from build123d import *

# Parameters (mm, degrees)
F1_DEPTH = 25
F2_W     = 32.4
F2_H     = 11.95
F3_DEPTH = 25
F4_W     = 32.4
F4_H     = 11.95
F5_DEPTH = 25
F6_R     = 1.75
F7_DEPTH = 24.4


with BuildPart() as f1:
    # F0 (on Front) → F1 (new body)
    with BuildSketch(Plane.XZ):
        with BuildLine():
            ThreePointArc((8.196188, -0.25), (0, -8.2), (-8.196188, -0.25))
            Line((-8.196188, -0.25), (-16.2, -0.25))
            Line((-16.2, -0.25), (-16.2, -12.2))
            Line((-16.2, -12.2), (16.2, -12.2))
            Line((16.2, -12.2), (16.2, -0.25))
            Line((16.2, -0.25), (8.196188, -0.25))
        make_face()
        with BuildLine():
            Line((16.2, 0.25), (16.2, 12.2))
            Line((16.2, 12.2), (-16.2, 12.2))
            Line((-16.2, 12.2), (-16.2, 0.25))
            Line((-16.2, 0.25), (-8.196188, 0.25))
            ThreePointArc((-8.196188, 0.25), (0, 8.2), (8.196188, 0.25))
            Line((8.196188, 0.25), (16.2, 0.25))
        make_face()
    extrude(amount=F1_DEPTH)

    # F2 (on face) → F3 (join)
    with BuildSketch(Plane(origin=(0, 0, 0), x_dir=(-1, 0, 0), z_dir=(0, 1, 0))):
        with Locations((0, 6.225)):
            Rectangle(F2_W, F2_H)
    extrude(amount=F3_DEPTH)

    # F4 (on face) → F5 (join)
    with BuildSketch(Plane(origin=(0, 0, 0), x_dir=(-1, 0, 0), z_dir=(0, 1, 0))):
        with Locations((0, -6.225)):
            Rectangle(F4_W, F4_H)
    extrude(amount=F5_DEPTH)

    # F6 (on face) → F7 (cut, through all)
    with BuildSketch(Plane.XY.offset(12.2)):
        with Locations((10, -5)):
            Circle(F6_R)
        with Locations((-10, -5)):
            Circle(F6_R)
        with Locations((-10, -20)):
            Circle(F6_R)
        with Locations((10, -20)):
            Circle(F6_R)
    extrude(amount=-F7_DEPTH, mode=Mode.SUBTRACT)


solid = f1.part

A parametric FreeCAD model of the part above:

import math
import FreeCAD as App
import Part
import Sketcher
from FreeCAD import Vector
Q = App.Units.Quantity

doc = App.newDocument("Part")
body = doc.addObject("PartDesign::Body", "Body")
body.AllowCompound = True

sketch1 = body.newObject("Sketcher::SketchObject", "Sketch")
sketch1.AttachmentSupport = (doc.getObject("XZ_Plane"), [""])
sketch1.MapMode = "FlatFace"
sketch1.addGeometry(Part.ArcOfCircle(Part.Circle(Vector(0, 0, 0), Vector(0, 0, 1), 8), math.radians(-178), math.radians(-2)), False)
sketch1.addGeometry(Part.LineSegment(Vector(-8, 0, 0), Vector(-16, 0, 0)), False)
sketch1.addGeometry(Part.LineSegment(Vector(-16, 0, 0), Vector(-16, -12, 0)), False)
sketch1.addGeometry(Part.LineSegment(Vector(-16, -12, 0), Vector(16, -12, 0)), False)
sketch1.addGeometry(Part.LineSegment(Vector(16, -12, 0), Vector(16, 0, 0)), False)
sketch1.addGeometry(Part.LineSegment(Vector(16, 0, 0), Vector(8, 0, 0)), False)
sketch1.addGeometry(Part.LineSegment(Vector(16, 0, 0), Vector(16, 12, 0)), False)
sketch1.addGeometry(Part.LineSegment(Vector(16, 12, 0), Vector(-16, 12, 0)), False)
sketch1.addGeometry(Part.LineSegment(Vector(-16, 12, 0), Vector(-16, 0, 0)), False)
sketch1.addGeometry(Part.LineSegment(Vector(-16, 0, 0), Vector(-8, 0, 0)), False)
sketch1.addGeometry(Part.ArcOfCircle(Part.Circle(Vector(0, 0, 0), Vector(0, 0, 1), 8), math.radians(2), math.radians(178)), False)
sketch1.addGeometry(Part.LineSegment(Vector(8, 0, 0), Vector(16, 0, 0)), False)
sketch1.addConstraint(Sketcher.Constraint("Coincident", 0, 1, 1, 1))
sketch1.addConstraint(Sketcher.Constraint("Coincident", 1, 2, 2, 1))
sketch1.addConstraint(Sketcher.Constraint("Coincident", 2, 2, 3, 1))
sketch1.addConstraint(Sketcher.Constraint("Coincident", 3, 2, 4, 1))
sketch1.addConstraint(Sketcher.Constraint("Coincident", 4, 2, 5, 1))
sketch1.addConstraint(Sketcher.Constraint("Coincident", 5, 2, 0, 2))
sketch1.addConstraint(Sketcher.Constraint("Coincident", 6, 2, 7, 1))
sketch1.addConstraint(Sketcher.Constraint("Coincident", 7, 2, 8, 1))
sketch1.addConstraint(Sketcher.Constraint("Coincident", 8, 2, 9, 1))
sketch1.addConstraint(Sketcher.Constraint("Coincident", 9, 2, 10, 2))
sketch1.addConstraint(Sketcher.Constraint("Coincident", 10, 1, 11, 1))
sketch1.addConstraint(Sketcher.Constraint("Coincident", 11, 2, 6, 1))
sketch1.addConstraint(Sketcher.Constraint("Horizontal", 1))
sketch1.addConstraint(Sketcher.Constraint("Vertical", 2))
sketch1.addConstraint(Sketcher.Constraint("Horizontal", 3))
sketch1.addConstraint(Sketcher.Constraint("Vertical", 4))
sketch1.addConstraint(Sketcher.Constraint("Horizontal", 5))
sketch1.addConstraint(Sketcher.Constraint("Vertical", 6))
sketch1.addConstraint(Sketcher.Constraint("Horizontal", 7))
sketch1.addConstraint(Sketcher.Constraint("Vertical", 8))
sketch1.addConstraint(Sketcher.Constraint("Horizontal", 9))
sketch1.addConstraint(Sketcher.Constraint("Horizontal", 11))
sketch1.addConstraint(Sketcher.Constraint("Coincident", 0, 3, -1, 1))
sketch1.addConstraint(Sketcher.Constraint("Coincident", 10, 3, -1, 1))
sketch1.addConstraint(Sketcher.Constraint("Equal", 0, 10))
sketch1.addConstraint(Sketcher.Constraint("Symmetric", 2, 2, 6, 2, -1, 1))
sketch1.addConstraint(Sketcher.Constraint("Symmetric", 4, 2, 8, 2, -1, 1))
sketch1.addConstraint(Sketcher.Constraint("Symmetric", 1, 2, 4, 2, -2))
sketch1.addConstraint(Sketcher.Constraint("Horizontal", 9, 2, 10, 1))
sketch1.addConstraint(Sketcher.Constraint("Radius", 0, Q("8.2 mm")))
sketch1.addConstraint(Sketcher.Constraint("DistanceX", 3, 1, 3, 2, Q("32.4 mm")))
sketch1.addConstraint(Sketcher.Constraint("DistanceY", 2, 2, 2, 1, Q("11.95 mm")))
sketch1.addConstraint(Sketcher.Constraint("DistanceY", 2, 2, -1, 1, Q("12.2 mm")))
pad1 = body.newObject("PartDesign::Pad", "Pad")
pad1.Profile = sketch1
pad1.Length = 25

sketch2 = body.newObject("Sketcher::SketchObject", "Sketch001")
sketch2.AttachmentSupport = (doc.getObject("XZ_Plane"), [""])
sketch2.MapMode = "FlatFace"
sketch2.addGeometry(Part.LineSegment(Vector(16, 12, 0), Vector(16, 0, 0)), False)
sketch2.addGeometry(Part.LineSegment(Vector(16, 0, 0), Vector(-16, 0, 0)), False)
sketch2.addGeometry(Part.LineSegment(Vector(-16, 0, 0), Vector(-16, 12, 0)), False)
sketch2.addGeometry(Part.LineSegment(Vector(-16, 12, 0), Vector(16, 12, 0)), False)
sketch2.addConstraint(Sketcher.Constraint("Coincident", 0, 2, 1, 1))
sketch2.addConstraint(Sketcher.Constraint("Coincident", 1, 2, 2, 1))
sketch2.addConstraint(Sketcher.Constraint("Coincident", 2, 2, 3, 1))
sketch2.addConstraint(Sketcher.Constraint("Coincident", 3, 2, 0, 1))
sketch2.addConstraint(Sketcher.Constraint("Vertical", 0))
sketch2.addConstraint(Sketcher.Constraint("Horizontal", 1))
sketch2.addConstraint(Sketcher.Constraint("Vertical", 2))
sketch2.addConstraint(Sketcher.Constraint("Horizontal", 3))
sketch2.addConstraint(Sketcher.Constraint("DistanceX", 1, 2, 1, 1, Q("32.4 mm")))
sketch2.addConstraint(Sketcher.Constraint("DistanceY", 0, 2, 0, 1, Q("11.95 mm")))
sketch2.addConstraint(Sketcher.Constraint("DistanceX", -1, 1, 0, 2, Q("16.2 mm")))
sketch2.addConstraint(Sketcher.Constraint("DistanceY", -1, 1, 2, 2, Q("12.2 mm")))
pad2 = body.newObject("PartDesign::Pad", "Pad001")
pad2.Profile = sketch2
pad2.Length = 25
pad2.Reversed = True

sketch3 = body.newObject("Sketcher::SketchObject", "Sketch002")
sketch3.AttachmentSupport = (doc.getObject("XZ_Plane"), [""])
sketch3.MapMode = "FlatFace"
sketch3.addGeometry(Part.LineSegment(Vector(16, 0, 0), Vector(16, -12, 0)), False)
sketch3.addGeometry(Part.LineSegment(Vector(16, -12, 0), Vector(-16, -12, 0)), False)
sketch3.addGeometry(Part.LineSegment(Vector(-16, -12, 0), Vector(-16, 0, 0)), False)
sketch3.addGeometry(Part.LineSegment(Vector(-16, 0, 0), Vector(16, 0, 0)), False)
sketch3.addConstraint(Sketcher.Constraint("Coincident", 0, 2, 1, 1))
sketch3.addConstraint(Sketcher.Constraint("Coincident", 1, 2, 2, 1))
sketch3.addConstraint(Sketcher.Constraint("Coincident", 2, 2, 3, 1))
sketch3.addConstraint(Sketcher.Constraint("Coincident", 3, 2, 0, 1))
sketch3.addConstraint(Sketcher.Constraint("Vertical", 0))
sketch3.addConstraint(Sketcher.Constraint("Horizontal", 1))
sketch3.addConstraint(Sketcher.Constraint("Vertical", 2))
sketch3.addConstraint(Sketcher.Constraint("Horizontal", 3))
sketch3.addConstraint(Sketcher.Constraint("DistanceX", 1, 2, 1, 1, Q("32.4 mm")))
sketch3.addConstraint(Sketcher.Constraint("DistanceY", 0, 2, 0, 1, Q("11.95 mm")))
sketch3.addConstraint(Sketcher.Constraint("DistanceX", -1, 1, 0, 2, Q("16.2 mm")))
sketch3.addConstraint(Sketcher.Constraint("DistanceY", 0, 2, -1, 1, Q("12.2 mm")))
pad3 = body.newObject("PartDesign::Pad", "Pad002")
pad3.Profile = sketch3
pad3.Length = 25
pad3.Reversed = True

sketch4 = body.newObject("Sketcher::SketchObject", "Sketch003")
sketch4.AttachmentSupport = (doc.getObject("XY_Plane"), [""])
sketch4.MapMode = "FlatFace"
sketch4.AttachmentOffset = App.Placement(Vector(0, 0, 12.2), App.Rotation())
sketch4.addGeometry(Part.Circle(Vector(10, -5, 0), Vector(0, 0, 1), 1.8), False)
sketch4.addGeometry(Part.Circle(Vector(-10, -5, 0), Vector(0, 0, 1), 1.8), False)
sketch4.addGeometry(Part.Circle(Vector(-10, -20, 0), Vector(0, 0, 1), 1.8), False)
sketch4.addGeometry(Part.Circle(Vector(10, -20, 0), Vector(0, 0, 1), 1.8), False)
sketch4.addConstraint(Sketcher.Constraint("Equal", 0, 1))
sketch4.addConstraint(Sketcher.Constraint("Equal", 1, 2))
sketch4.addConstraint(Sketcher.Constraint("Equal", 2, 3))
sketch4.addConstraint(Sketcher.Constraint("Symmetric", 0, 3, 1, 3, -2))
sketch4.addConstraint(Sketcher.Constraint("Symmetric", 2, 3, 3, 3, -2))
sketch4.addConstraint(Sketcher.Constraint("Vertical", 1, 3, 2, 3))
sketch4.addConstraint(Sketcher.Constraint("Diameter", 0, Q("3.5 mm")))
sketch4.addConstraint(Sketcher.Constraint("DistanceX", -1, 1, 0, 3, Q("10 mm")))
sketch4.addConstraint(Sketcher.Constraint("DistanceY", 0, 3, -1, 1, Q("5 mm")))
sketch4.addConstraint(Sketcher.Constraint("DistanceY", 2, 3, -1, 1, Q("20 mm")))
pocket1 = body.newObject("PartDesign::Pocket", "Pocket")
pocket1.Profile = sketch4
pocket1.Type = "ThroughAll"

doc.recompute()
